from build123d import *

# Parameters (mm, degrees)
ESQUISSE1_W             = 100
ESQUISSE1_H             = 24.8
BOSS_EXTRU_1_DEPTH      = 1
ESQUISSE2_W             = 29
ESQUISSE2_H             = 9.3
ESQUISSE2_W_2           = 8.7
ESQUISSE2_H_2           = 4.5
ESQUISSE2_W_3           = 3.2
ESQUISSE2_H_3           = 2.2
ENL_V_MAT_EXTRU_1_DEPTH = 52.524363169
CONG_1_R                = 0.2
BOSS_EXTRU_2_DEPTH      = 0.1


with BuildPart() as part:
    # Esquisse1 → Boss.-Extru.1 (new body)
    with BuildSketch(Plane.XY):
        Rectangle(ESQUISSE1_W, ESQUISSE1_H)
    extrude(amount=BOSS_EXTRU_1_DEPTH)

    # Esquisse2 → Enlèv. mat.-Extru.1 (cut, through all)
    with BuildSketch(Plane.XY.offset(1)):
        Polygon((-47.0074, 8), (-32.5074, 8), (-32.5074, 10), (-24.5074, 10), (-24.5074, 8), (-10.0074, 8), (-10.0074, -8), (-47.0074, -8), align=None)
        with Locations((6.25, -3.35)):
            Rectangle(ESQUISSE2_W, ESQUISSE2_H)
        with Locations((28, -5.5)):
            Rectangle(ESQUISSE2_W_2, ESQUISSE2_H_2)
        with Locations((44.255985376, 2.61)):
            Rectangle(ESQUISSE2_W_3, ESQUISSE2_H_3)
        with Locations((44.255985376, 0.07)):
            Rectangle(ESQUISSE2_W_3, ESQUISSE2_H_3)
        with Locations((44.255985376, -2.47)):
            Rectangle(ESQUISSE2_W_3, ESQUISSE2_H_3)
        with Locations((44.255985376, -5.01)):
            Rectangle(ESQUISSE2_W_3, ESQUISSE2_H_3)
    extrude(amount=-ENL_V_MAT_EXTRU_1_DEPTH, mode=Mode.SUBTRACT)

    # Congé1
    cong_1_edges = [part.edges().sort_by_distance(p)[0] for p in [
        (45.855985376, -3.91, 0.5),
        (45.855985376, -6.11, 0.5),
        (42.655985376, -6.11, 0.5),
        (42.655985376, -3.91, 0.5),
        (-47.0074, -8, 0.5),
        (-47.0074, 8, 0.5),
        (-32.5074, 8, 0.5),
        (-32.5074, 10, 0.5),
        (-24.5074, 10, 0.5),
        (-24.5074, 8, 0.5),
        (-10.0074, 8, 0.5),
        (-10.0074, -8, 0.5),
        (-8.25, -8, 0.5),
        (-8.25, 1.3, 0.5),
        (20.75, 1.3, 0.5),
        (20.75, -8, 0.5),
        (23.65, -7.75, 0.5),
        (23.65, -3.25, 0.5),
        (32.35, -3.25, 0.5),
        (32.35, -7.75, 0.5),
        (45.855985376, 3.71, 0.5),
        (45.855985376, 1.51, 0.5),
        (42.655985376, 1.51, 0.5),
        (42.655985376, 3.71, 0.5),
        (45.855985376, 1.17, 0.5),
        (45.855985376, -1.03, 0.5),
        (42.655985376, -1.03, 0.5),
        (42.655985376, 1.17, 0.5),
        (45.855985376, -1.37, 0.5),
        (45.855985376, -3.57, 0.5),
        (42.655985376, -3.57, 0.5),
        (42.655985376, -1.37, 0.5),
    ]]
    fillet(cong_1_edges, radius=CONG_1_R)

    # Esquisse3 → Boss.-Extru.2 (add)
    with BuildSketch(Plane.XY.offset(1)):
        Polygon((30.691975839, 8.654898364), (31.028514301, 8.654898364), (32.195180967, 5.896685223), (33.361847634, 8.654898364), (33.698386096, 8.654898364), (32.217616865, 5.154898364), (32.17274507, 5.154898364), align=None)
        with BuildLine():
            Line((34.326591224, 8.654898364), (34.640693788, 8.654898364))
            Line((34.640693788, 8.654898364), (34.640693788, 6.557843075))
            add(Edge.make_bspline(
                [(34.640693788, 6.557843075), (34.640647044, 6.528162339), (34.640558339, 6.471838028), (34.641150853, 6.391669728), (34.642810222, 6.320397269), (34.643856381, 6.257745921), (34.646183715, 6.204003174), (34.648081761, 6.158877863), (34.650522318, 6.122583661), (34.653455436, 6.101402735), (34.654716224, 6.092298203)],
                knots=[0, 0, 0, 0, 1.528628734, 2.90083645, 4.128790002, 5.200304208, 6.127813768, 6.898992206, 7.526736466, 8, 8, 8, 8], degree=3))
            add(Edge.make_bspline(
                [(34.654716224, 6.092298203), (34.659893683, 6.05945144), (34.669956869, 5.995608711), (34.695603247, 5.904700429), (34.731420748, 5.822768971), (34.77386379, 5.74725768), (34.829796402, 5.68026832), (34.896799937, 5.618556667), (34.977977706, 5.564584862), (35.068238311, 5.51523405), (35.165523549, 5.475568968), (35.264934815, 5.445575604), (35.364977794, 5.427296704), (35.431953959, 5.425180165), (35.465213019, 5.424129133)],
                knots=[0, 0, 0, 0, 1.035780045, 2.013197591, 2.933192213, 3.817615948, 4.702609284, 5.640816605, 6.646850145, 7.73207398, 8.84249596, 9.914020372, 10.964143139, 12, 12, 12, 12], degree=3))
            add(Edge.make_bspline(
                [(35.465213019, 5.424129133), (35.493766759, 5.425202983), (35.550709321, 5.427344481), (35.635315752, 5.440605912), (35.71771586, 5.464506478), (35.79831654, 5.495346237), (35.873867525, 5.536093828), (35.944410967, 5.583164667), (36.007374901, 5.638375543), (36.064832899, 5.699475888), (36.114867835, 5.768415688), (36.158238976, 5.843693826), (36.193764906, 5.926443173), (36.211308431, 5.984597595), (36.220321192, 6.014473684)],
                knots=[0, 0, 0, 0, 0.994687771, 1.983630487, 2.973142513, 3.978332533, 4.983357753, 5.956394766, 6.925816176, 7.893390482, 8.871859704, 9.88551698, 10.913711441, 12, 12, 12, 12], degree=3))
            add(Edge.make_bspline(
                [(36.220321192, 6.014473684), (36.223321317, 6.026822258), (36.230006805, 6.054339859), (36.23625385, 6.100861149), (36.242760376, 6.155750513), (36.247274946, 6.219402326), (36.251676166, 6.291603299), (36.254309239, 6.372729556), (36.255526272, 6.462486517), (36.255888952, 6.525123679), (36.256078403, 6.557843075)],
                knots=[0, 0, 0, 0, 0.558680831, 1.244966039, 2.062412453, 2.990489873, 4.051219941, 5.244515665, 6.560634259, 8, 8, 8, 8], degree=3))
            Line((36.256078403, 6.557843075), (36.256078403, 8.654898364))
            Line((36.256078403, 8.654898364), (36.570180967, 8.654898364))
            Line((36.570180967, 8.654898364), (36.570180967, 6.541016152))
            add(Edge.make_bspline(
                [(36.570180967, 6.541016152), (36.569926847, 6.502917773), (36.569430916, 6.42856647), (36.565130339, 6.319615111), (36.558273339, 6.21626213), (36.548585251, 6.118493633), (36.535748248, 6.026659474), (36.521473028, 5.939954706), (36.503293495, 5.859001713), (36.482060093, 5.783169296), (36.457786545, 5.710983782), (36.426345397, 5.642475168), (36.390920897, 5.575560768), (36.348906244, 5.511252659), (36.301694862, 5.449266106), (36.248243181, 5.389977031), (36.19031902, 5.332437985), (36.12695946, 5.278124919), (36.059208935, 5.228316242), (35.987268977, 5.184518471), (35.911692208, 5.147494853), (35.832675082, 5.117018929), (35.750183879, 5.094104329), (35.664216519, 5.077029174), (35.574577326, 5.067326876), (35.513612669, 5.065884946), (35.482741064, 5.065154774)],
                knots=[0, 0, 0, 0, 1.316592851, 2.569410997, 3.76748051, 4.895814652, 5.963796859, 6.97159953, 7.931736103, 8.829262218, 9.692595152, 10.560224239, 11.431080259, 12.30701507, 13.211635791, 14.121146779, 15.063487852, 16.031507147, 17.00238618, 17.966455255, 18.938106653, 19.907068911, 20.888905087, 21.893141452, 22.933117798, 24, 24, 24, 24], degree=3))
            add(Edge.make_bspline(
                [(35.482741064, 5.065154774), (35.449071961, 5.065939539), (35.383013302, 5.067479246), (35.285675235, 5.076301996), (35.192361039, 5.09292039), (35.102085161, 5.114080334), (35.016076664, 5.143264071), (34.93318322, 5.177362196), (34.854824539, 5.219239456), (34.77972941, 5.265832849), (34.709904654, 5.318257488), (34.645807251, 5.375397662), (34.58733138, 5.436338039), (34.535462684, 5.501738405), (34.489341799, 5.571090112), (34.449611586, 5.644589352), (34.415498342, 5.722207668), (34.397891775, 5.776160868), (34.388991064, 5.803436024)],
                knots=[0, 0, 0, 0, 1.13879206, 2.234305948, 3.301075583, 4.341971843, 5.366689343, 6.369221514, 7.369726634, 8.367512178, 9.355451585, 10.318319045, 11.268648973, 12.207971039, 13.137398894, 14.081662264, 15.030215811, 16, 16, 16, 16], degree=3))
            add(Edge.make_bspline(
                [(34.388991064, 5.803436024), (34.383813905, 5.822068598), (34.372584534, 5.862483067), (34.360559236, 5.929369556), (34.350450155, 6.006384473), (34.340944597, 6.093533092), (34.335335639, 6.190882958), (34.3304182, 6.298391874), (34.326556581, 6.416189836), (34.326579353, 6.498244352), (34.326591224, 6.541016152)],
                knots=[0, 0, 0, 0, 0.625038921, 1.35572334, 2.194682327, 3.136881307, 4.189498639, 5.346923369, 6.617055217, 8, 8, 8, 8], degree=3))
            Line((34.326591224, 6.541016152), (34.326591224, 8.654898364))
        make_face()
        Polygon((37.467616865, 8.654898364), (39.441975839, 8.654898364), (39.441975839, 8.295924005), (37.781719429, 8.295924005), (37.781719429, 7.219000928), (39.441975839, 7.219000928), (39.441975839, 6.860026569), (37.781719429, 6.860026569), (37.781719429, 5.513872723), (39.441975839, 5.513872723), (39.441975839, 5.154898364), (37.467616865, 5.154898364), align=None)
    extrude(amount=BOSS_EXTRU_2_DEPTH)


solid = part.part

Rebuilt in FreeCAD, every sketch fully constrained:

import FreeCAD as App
import Part
import Sketcher

V = App.Vector
Q = App.Units.Quantity


def edges_at(feature, points):
    """Names of the edges that pass closest to the given points."""
    edges = feature.Shape.Edges
    near = lambda p: min(range(len(edges)), key=lambda i: edges[i].distToShape(Part.Vertex(*p))[0])
    return sorted({f"Edge{near(p) + 1}" for p in points})

doc = App.newDocument("Part")
body = doc.addObject("PartDesign::Body", "Body")

sketch1 = body.newObject("Sketcher::SketchObject", "Sketch")
sketch1.AttachmentSupport = (doc.getObject("XY_Plane"), [""])
sketch1.MapMode = "FlatFace"
sketch1.addGeometry([
    Part.LineSegment(V(-50, 12.4, 0), V(-50, -12.4, 0)),
    Part.LineSegment(V(-50, -12.4, 0), V(50, -12.4, 0)),
    Part.LineSegment(V(50, -12.4, 0), V(50, 12.4, 0)),
    Part.LineSegment(V(50, 12.4, 0), V(-50, 12.4, 0)),
], False)
sketch1.addConstraint([
    Sketcher.Constraint("Coincident", 0, 2, 1, 1),
    Sketcher.Constraint("Coincident", 1, 2, 2, 1),
    Sketcher.Constraint("Coincident", 2, 2, 3, 1),
    Sketcher.Constraint("Coincident", 3, 2, 0, 1),
    Sketcher.Constraint("Vertical", 0),
    Sketcher.Constraint("Horizontal", 1),
    Sketcher.Constraint("Vertical", 2),
    Sketcher.Constraint("Horizontal", 3),
    Sketcher.Constraint("Symmetric", 0, 2, 2, 2, -1, 1),
    Sketcher.Constraint("DistanceX", 1, 1, 1, 2, Q("100 mm")),
    Sketcher.Constraint("DistanceY", 0, 2, 0, 1, Q("24.8 mm")),
])
pad1 = body.newObject("PartDesign::Pad", "Pad")
pad1.Profile = sketch1
pad1.Length = 1

sketch2 = body.newObject("Sketcher::SketchObject", "Sketch001")
sketch2.AttachmentSupport = (doc.getObject("XY_Plane"), [""])
sketch2.MapMode = "FlatFace"
sketch2.AttachmentOffset = App.Placement(V(0, 0, 1), App.Rotation())
sketch2.addGeometry([
    Part.LineSegment(V(-32.5074, 8, 0), V(-47.0074, 8, 0)),
    Part.LineSegment(V(-47.0074, 8, 0), V(-47.0074, -8, 0)),
    Part.LineSegment(V(-47.0074, -8, 0), V(-10.0074, -8, 0)),
    Part.LineSegment(V(-10.0074, -8, 0), V(-10.0074, 8, 0)),
    Part.LineSegment(V(-10.0074, 8, 0), V(-24.5074, 8, 0)),
    Part.LineSegment(V(-24.5074, 8, 0), V(-24.5074, 10, 0)),
    Part.LineSegment(V(-24.5074, 10, 0), V(-32.5074, 10, 0)),
    Part.LineSegment(V(-32.5074, 10, 0), V(-32.5074, 8, 0)),
    Part.LineSegment(V(-8.25, 1.3, 0), V(-8.25, -8, 0)),
    Part.LineSegment(V(-8.25, -8, 0), V(20.75, -8, 0)),
    Part.LineSegment(V(20.75, -8, 0), V(20.75, 1.3, 0)),
    Part.LineSegment(V(20.75, 1.3, 0), V(-8.25, 1.3, 0)),
    Part.LineSegment(V(23.65, -3.25, 0), V(23.65, -7.75, 0)),
    Part.LineSegment(V(23.65, -7.75, 0), V(32.35, -7.75, 0)),
    Part.LineSegment(V(32.35, -7.75, 0), V(32.35, -3.25, 0)),
    Part.LineSegment(V(32.35, -3.25, 0), V(23.65, -3.25, 0)),
    Part.LineSegment(V(42.655985, 3.71, 0), V(42.655985, 1.51, 0)),
    Part.LineSegment(V(42.655985, 1.51, 0), V(45.855985, 1.51, 0)),
    Part.LineSegment(V(45.855985, 1.51, 0), V(45.855985, 3.71, 0)),
    Part.LineSegment(V(45.855985, 3.71, 0), V(42.655985, 3.71, 0)),
    Part.LineSegment(V(42.655985, 1.17, 0), V(42.655985, -1.03, 0)),
    Part.LineSegment(V(42.655985, -1.03, 0), V(45.855985, -1.03, 0)),
    Part.LineSegment(V(45.855985, -1.03, 0), V(45.855985, 1.17, 0)),
    Part.LineSegment(V(45.855985, 1.17, 0), V(42.655985, 1.17, 0)),
    Part.LineSegment(V(42.655985, -1.37, 0), V(42.655985, -3.57, 0)),
    Part.LineSegment(V(42.655985, -3.57, 0), V(45.855985, -3.57, 0)),
    Part.LineSegment(V(45.855985, -3.57, 0), V(45.855985, -1.37, 0)),
    Part.LineSegment(V(45.855985, -1.37, 0), V(42.655985, -1.37, 0)),
    Part.LineSegment(V(42.655985, -3.91, 0), V(42.655985, -6.11, 0)),
    Part.LineSegment(V(42.655985, -6.11, 0), V(45.855985, -6.11, 0)),
    Part.LineSegment(V(45.855985, -6.11, 0), V(45.855985, -3.91, 0)),
    Part.LineSegment(V(45.855985, -3.91, 0), V(42.655985, -3.91, 0)),
], False)
sketch2.addConstraint([
    Sketcher.Constraint("Coincident", 0, 2, 1, 1),
    Sketcher.Constraint("Coincident", 1, 2, 2, 1),
    Sketcher.Constraint("Coincident", 2, 2, 3, 1),
    Sketcher.Constraint("Coincident", 3, 2, 4, 1),
    Sketcher.Constraint("Coincident", 4, 2, 5, 1),
    Sketcher.Constraint("Coincident", 5, 2, 6, 1),
    Sketcher.Constraint("Coincident", 6, 2, 7, 1),
    Sketcher.Constraint("Coincident", 7, 2, 0, 1),
    Sketcher.Constraint("Coincident", 8, 2, 9, 1),
    Sketcher.Constraint("Coincident", 9, 2, 10, 1),
    Sketcher.Constraint("Coincident", 10, 2, 11, 1),
    Sketcher.Constraint("Coincident", 11, 2, 8, 1),
    Sketcher.Constraint("Coincident", 12, 2, 13, 1),
    Sketcher.Constraint("Coincident", 13, 2, 14, 1),
    Sketcher.Constraint("Coincident", 14, 2, 15, 1),
    Sketcher.Constraint("Coincident", 15, 2, 12, 1),
    Sketcher.Constraint("Coincident", 16, 2, 17, 1),
    Sketcher.Constraint("Coincident", 17, 2, 18, 1),
    Sketcher.Constraint("Coincident", 18, 2, 19, 1),
    Sketcher.Constraint("Coincident", 19, 2, 16, 1),
    Sketcher.Constraint("Coincident", 20, 2, 21, 1),
    Sketcher.Constraint("Coincident", 21, 2, 22, 1),
    Sketcher.Constraint("Coincident", 22, 2, 23, 1),
    Sketcher.Constraint("Coincident", 23, 2, 20, 1),
    Sketcher.Constraint("Coincident", 24, 2, 25, 1),
    Sketcher.Constraint("Coincident", 25, 2, 26, 1),
    Sketcher.Constraint("Coincident", 26, 2, 27, 1),
    Sketcher.Constraint("Coincident", 27, 2, 24, 1),
    Sketcher.Constraint("Coincident", 28, 2, 29, 1),
    Sketcher.Constraint("Coincident", 29, 2, 30, 1),
    Sketcher.Constraint("Coincident", 30, 2, 31, 1),
    Sketcher.Constraint("Coincident", 31, 2, 28, 1),
    Sketcher.Constraint("Horizontal", 0),
    Sketcher.Constraint("Vertical", 1),
    Sketcher.Constraint("Horizontal", 2),
    Sketcher.Constraint("Vertical", 3),
    Sketcher.Constraint("Horizontal", 4),
    Sketcher.Constraint("Vertical", 5),
    Sketcher.Constraint("Horizontal", 6),
    Sketcher.Constraint("Vertical", 7),
    Sketcher.Constraint("Vertical", 8),
    Sketcher.Constraint("Horizontal", 9),
    Sketcher.Constraint("Vertical", 10),
    Sketcher.Constraint("Horizontal", 11),
    Sketcher.Constraint("Vertical", 12),
    Sketcher.Constraint("Horizontal", 13),
    Sketcher.Constraint("Vertical", 14),
    Sketcher.Constraint("Horizontal", 15),
    Sketcher.Constraint("Vertical", 16),
    Sketcher.Constraint("Horizontal", 17),
    Sketcher.Constraint("Vertical", 18),
    Sketcher.Constraint("Horizontal", 19),
    Sketcher.Constraint("Vertical", 20),
    Sketcher.Constraint("Horizontal", 21),
    Sketcher.Constraint("Vertical", 22),
    Sketcher.Constraint("Horizontal", 23),
    Sketcher.Constraint("Vertical", 24),
    Sketcher.Constraint("Horizontal", 25),
    Sketcher.Constraint("Vertical", 26),
    Sketcher.Constraint("Horizontal", 27),
    Sketcher.Constraint("Vertical", 28),
    Sketcher.Constraint("Horizontal", 29),
    Sketcher.Constraint("Vertical", 30),
    Sketcher.Constraint("Horizontal", 31),
    Sketcher.Constraint("Horizontal", 0, 2, 3, 2),
    Sketcher.Constraint("Horizontal", 2, 2, 8, 2),
    Sketcher.Constraint("Vertical", 19, 2, 20, 2),
    Sketcher.Constraint("Vertical", 18, 2, 21, 2),
    Sketcher.Constraint("Vertical", 23, 2, 24, 2),
    Sketcher.Constraint("Vertical", 22, 2, 25, 2),
    Sketcher.Constraint("Vertical", 27, 2, 28, 2),
    Sketcher.Constraint("Vertical", 26, 2, 29, 2),
    Sketcher.Constraint("Equal", 0, 4),
    Sketcher.Constraint("Equal", 18, 20),
    Sketcher.Constraint("Equal", 22, 24),
    Sketcher.Constraint("Equal", 26, 28),
    Sketcher.Constraint("DistanceX", 2, 1, 2, 2, Q("37 mm")),
    Sketcher.Constraint("DistanceX", 6, 2, 6, 1, Q("8 mm")),
    Sketcher.Constraint("DistanceX", 9, 1, 9, 2, Q("29 mm")),
    Sketcher.Constraint("DistanceY", 1, 2, 1, 1, Q("16 mm")),
    Sketcher.Constraint("DistanceY", 5, 1, 5, 2, Q("2 mm")),
    Sketcher.Constraint("DistanceX", 13, 1, 13, 2, Q("8.7 mm")),
    Sketcher.Constraint("DistanceX", 17, 1, 17, 2, Q("3.2 mm")),
    Sketcher.Constraint("DistanceY", 8, 2, 8, 1, Q("9.3 mm")),
    Sketcher.Constraint("DistanceY", 12, 2, 12, 1, Q("4.5 mm")),
    Sketcher.Constraint("DistanceY", 16, 2, 16, 1, Q("2.2 mm")),
    Sketcher.Constraint("DistanceY", -1, 1, 0, 2, Q("8 mm")),
    Sketcher.Constraint("DistanceX", 9, 2, 12, 2, Q("2.9 mm")),
    Sketcher.Constraint("DistanceX", 8, 2, -1, 1, Q("8.25 mm")),
    Sketcher.Constraint("DistanceY", 12, 2, -1, 1, Q("7.75 mm")),
    Sketcher.Constraint("DistanceY", -1, 1, 16, 2, Q("1.51 mm")),
    Sketcher.Constraint("DistanceY", 20, 2, -1, 1, Q("1.03 mm")),
    Sketcher.Constraint("DistanceY", 24, 2, -1, 1, Q("3.57 mm")),
    Sketcher.Constraint("DistanceY", 28, 2, -1, 1, Q("6.11 mm")),
    Sketcher.Constraint("DistanceX", 0, 2, -1, 1, Q("47.0074 mm")),
    Sketcher.Constraint("DistanceX", -1, 1, 16, 2, Q("42.655985 mm")),
])
pocket1 = body.newObject("PartDesign::Pocket", "Pocket")
pocket1.Profile = sketch2
pocket1.Type = "ThroughAll"
doc.recompute()

fillet = body.newObject("PartDesign::Fillet", "Fillet")
fillet.Base = (pocket1, edges_at(pocket1, [
    (45.856, -3.91, 0.5),
    (45.856, -6.11, 0.5),
    (42.656, -6.11, 0.5),
    (42.656, -3.91, 0.5),
    (-47.007, -8, 0.5),
    (-47.007, 8, 0.5),
    (-32.507, 8, 0.5),
    (-32.507, 10, 0.5),
    (-24.507, 10, 0.5),
    (-24.507, 8, 0.5),
    (-10.007, 8, 0.5),
    (-10.007, -8, 0.5),
    (-8.25, -8, 0.5),
    (-8.25, 1.3, 0.5),
    (20.75, 1.3, 0.5),
    (20.75, -8, 0.5),
    (23.65, -7.75, 0.5),
    (23.65, -3.25, 0.5),
    (32.35, -3.25, 0.5),
    (32.35, -7.75, 0.5),
    (45.856, 3.71, 0.5),
    (45.856, 1.51, 0.5),
    (42.656, 1.51, 0.5),
    (42.656, 3.71, 0.5),
    (45.856, 1.17, 0.5),
    (45.856, -1.03, 0.5),
    (42.656, -1.03, 0.5),
    (42.656, 1.17, 0.5),
    (45.856, -1.37, 0.5),
    (45.856, -3.57, 0.5),
    (42.656, -3.57, 0.5),
    (42.656, -1.37, 0.5),
]))
fillet.Radius = 0.2

sketch3 = body.newObject("Sketcher::SketchObject", "Sketch002")
sketch3.AttachmentSupport = (doc.getObject("XY_Plane"), [""])
sketch3.MapMode = "FlatFace"
sketch3.AttachmentOffset = App.Placement(V(0, 0, 1), App.Rotation())
sketch3.addGeometry([
    Part.LineSegment(V(31.028514, 8.654898, 0), V(30.691976, 8.654898, 0)),
    Part.LineSegment(V(30.691976, 8.654898, 0), V(32.172745, 5.154898, 0)),
    Part.LineSegment(V(32.172745, 5.154898, 0), V(32.217617, 5.154898, 0)),
    Part.LineSegment(V(32.217617, 5.154898, 0), V(33.698386, 8.654898, 0)),
    Part.LineSegment(V(33.698386, 8.654898, 0), V(33.361848, 8.654898, 0)),
    Part.LineSegment(V(33.361848, 8.654898, 0), V(32.195181, 5.896685, 0)),
    Part.LineSegment(V(32.195181, 5.896685, 0), V(31.028514, 8.654898, 0)),
    Part.LineSegment(V(34.640694, 8.654898, 0), V(34.326591, 8.654898, 0)),
    Part.LineSegment(V(34.326591, 8.654898, 0), V(34.326591, 6.541016, 0)),
    Part.BSplineCurve([V(34.388991, 5.803436, 0), V(34.383814, 5.822069, 0), V(34.372585, 5.862483, 0), V(34.360559, 5.92937, 0), V(34.35045, 6.006384, 0), V(34.340945, 6.093533, 0), V(34.335336, 6.190883, 0), V(34.330418, 6.298392, 0), V(34.326557, 6.41619, 0), V(34.326579, 6.498244, 0), V(34.326591, 6.541016, 0)], [4, 1, 1, 1, 1, 1, 1, 1, 4], [0, 0.625038921, 1.35572334, 2.194682327, 3.136881307, 4.189498639, 5.346923369, 6.617055217, 8], False, 3, [1, 1, 1, 1, 1, 1, 1, 1, 1, 1, 1], False),
    Part.BSplineCurve([V(35.482741, 5.065155, 0), V(35.449072, 5.06594, 0), V(35.383013, 5.067479, 0), V(35.285675, 5.076302, 0), V(35.192361, 5.09292, 0), V(35.102085, 5.11408, 0), V(35.016077, 5.143264, 0), V(34.933183, 5.177362, 0), V(34.854825, 5.219239, 0), V(34.779729, 5.265833, 0), V(34.709905, 5.318257, 0), V(34.645807, 5.375398, 0), V(34.587331, 5.436338, 0), V(34.535463, 5.501738, 0), V(34.489342, 5.57109, 0), V(34.449612, 5.644589, 0), V(34.415498, 5.722208, 0), V(34.397892, 5.776161, 0), V(34.388991, 5.803436, 0)], [4, 1, 1, 1, 1, 1, 1, 1, 1, 1, 1, 1, 1, 1, 1, 1, 4], [0, 1.13879206, 2.234305948, 3.301075583, 4.341971843, 5.366689343, 6.369221514, 7.369726634, 8.367512178, 9.355451585, 10.318319045, 11.268648973, 12.207971039, 13.137398894, 14.081662264, 15.030215811, 16], False, 3, [1, 1, 1, 1, 1, 1, 1, 1, 1, 1, 1, 1, 1, 1, 1, 1, 1, 1, 1], False),
    Part.BSplineCurve([V(36.570181, 6.541016, 0), V(36.569927, 6.502918, 0), V(36.569431, 6.428566, 0), V(36.56513, 6.319615, 0), V(36.558273, 6.216262, 0), V(36.548585, 6.118494, 0), V(36.535748, 6.026659, 0), V(36.521473, 5.939955, 0), V(36.503293, 5.859002, 0), V(36.48206, 5.783169, 0), V(36.457787, 5.710984, 0), V(36.426345, 5.642475, 0), V(36.390921, 5.575561, 0), V(36.348906, 5.511253, 0), V(36.301695, 5.449266, 0), V(36.248243, 5.389977, 0), V(36.190319, 5.332438, 0), V(36.126959, 5.278125, 0), V(36.059209, 5.228316, 0), V(35.987269, 5.184518, 0), V(35.911692, 5.147495, 0), V(35.832675, 5.117019, 0), V(35.750184, 5.094104, 0), V(35.664217, 5.077029, 0), V(35.574577, 5.067327, 0), V(35.513613, 5.065885, 0), V(35.482741, 5.065155, 0)], [4, 1, 1, 1, 1, 1, 1, 1, 1, 1, 1, 1, 1, 1, 1, 1, 1, 1, 1, 1, 1, 1, 1, 1, 4], [0, 1.316592851, 2.569410997, 3.76748051, 4.895814652, 5.963796859, 6.97159953, 7.931736103, 8.829262218, 9.692595152, 10.560224239, 11.431080259, 12.30701507, 13.211635791, 14.121146779, 15.063487852, 16.031507147, 17.00238618, 17.966455255, 18.938106653, 19.907068911, 20.888905087, 21.893141452, 22.933117798, 24], False, 3, [1, 1, 1, 1, 1, 1, 1, 1, 1, 1, 1, 1, 1, 1, 1, 1, 1, 1, 1, 1, 1, 1, 1, 1, 1, 1, 1], False),
    Part.LineSegment(V(36.570181, 6.541016, 0), V(36.570181, 8.654898, 0)),
    Part.LineSegment(V(36.570181, 8.654898, 0), V(36.256078, 8.654898, 0)),
    Part.LineSegment(V(36.256078, 8.654898, 0), V(36.256078, 6.557843, 0)),
    Part.BSplineCurve([V(36.220321, 6.014474, 0), V(36.223321, 6.026822, 0), V(36.230007, 6.05434, 0), V(36.236254, 6.100861, 0), V(36.24276, 6.155751, 0), V(36.247275, 6.219402, 0), V(36.251676, 6.291603, 0), V(36.254309, 6.37273, 0), V(36.255526, 6.462487, 0), V(36.255889, 6.525124, 0), V(36.256078, 6.557843, 0)], [4, 1, 1, 1, 1, 1, 1, 1, 4], [0, 0.558680831, 1.244966039, 2.062412453, 2.990489873, 4.051219941, 5.244515665, 6.560634259, 8], False, 3, [1, 1, 1, 1, 1, 1, 1, 1, 1, 1, 1], False),
    Part.BSplineCurve([V(35.465213, 5.424129, 0), V(35.493767, 5.425203, 0), V(35.550709, 5.427344, 0), V(35.635316, 5.440606, 0), V(35.717716, 5.464506, 0), V(35.798317, 5.495346, 0), V(35.873868, 5.536094, 0), V(35.944411, 5.583165, 0), V(36.007375, 5.638376, 0), V(36.064833, 5.699476, 0), V(36.114868, 5.768416, 0), V(36.158239, 5.843694, 0), V(36.193765, 5.926443, 0), V(36.211308, 5.984598, 0), V(36.220321, 6.014474, 0)], [4, 1, 1, 1, 1, 1, 1, 1, 1, 1, 1, 1, 4], [0, 0.994687771, 1.983630487, 2.973142513, 3.978332533, 4.983357753, 5.956394766, 6.925816176, 7.893390482, 8.871859704, 9.88551698, 10.913711441, 12], False, 3, [1, 1, 1, 1, 1, 1, 1, 1, 1, 1, 1, 1, 1, 1, 1], False),
    Part.BSplineCurve([V(34.654716, 6.092298, 0), V(34.659894, 6.059451, 0), V(34.669957, 5.995609, 0), V(34.695603, 5.9047, 0), V(34.731421, 5.822769, 0), V(34.773864, 5.747258, 0), V(34.829796, 5.680268, 0), V(34.8968, 5.618557, 0), V(34.977978, 5.564585, 0), V(35.068238, 5.515234, 0), V(35.165524, 5.475569, 0), V(35.264935, 5.445576, 0), V(35.364978, 5.427297, 0), V(35.431954, 5.42518, 0), V(35.465213, 5.424129, 0)], [4, 1, 1, 1, 1, 1, 1, 1, 1, 1, 1, 1, 4], [0, 1.035780045, 2.013197591, 2.933192213, 3.817615948, 4.702609284, 5.640816605, 6.646850145, 7.73207398, 8.84249596, 9.914020372, 10.964143139, 12], False, 3, [1, 1, 1, 1, 1, 1, 1, 1, 1, 1, 1, 1, 1, 1, 1], False),
    Part.BSplineCurve([V(34.640694, 6.557843, 0), V(34.640647, 6.528162, 0), V(34.640558, 6.471838, 0), V(34.641151, 6.39167, 0), V(34.64281, 6.320397, 0), V(34.643856, 6.257746, 0), V(34.646184, 6.204003, 0), V(34.648082, 6.158878, 0), V(34.650522, 6.122584, 0), V(34.653455, 6.101403, 0), V(34.654716, 6.092298, 0)], [4, 1, 1, 1, 1, 1, 1, 1, 4], [0, 1.528628734, 2.90083645, 4.128790002, 5.200304208, 6.127813768, 6.898992206, 7.526736466, 8], False, 3, [1, 1, 1, 1, 1, 1, 1, 1, 1, 1, 1], False),
    Part.LineSegment(V(34.640694, 6.557843, 0), V(34.640694, 8.654898, 0)),
    Part.LineSegment(V(39.441976, 8.654898, 0), V(37.467617, 8.654898, 0)),
    Part.LineSegment(V(37.467617, 8.654898, 0), V(37.467617, 5.154898, 0)),
    Part.LineSegment(V(37.467617, 5.154898, 0), V(39.441976, 5.154898, 0)),
    Part.LineSegment(V(39.441976, 5.154898, 0), V(39.441976, 5.513873, 0)),
    Part.LineSegment(V(39.441976, 5.513873, 0), V(37.781719, 5.513873, 0)),
    Part.LineSegment(V(37.781719, 5.513873, 0), V(37.781719, 6.860027, 0)),
    Part.LineSegment(V(37.781719, 6.860027, 0), V(39.441976, 6.860027, 0)),
    Part.LineSegment(V(39.441976, 6.860027, 0), V(39.441976, 7.219001, 0)),
    Part.LineSegment(V(39.441976, 7.219001, 0), V(37.781719, 7.219001, 0)),
    Part.LineSegment(V(37.781719, 7.219001, 0), V(37.781719, 8.295924, 0)),
    Part.LineSegment(V(37.781719, 8.295924, 0), V(39.441976, 8.295924, 0)),
    Part.LineSegment(V(39.441976, 8.295924, 0), V(39.441976, 8.654898, 0)),
], False)
sketch3.addConstraint([
    Sketcher.Constraint("Block", 9),
    Sketcher.Constraint("Block", 10),
    Sketcher.Constraint("Block", 11),
    Sketcher.Constraint("Block", 15),
    Sketcher.Constraint("Block", 16),
    Sketcher.Constraint("Block", 17),
    Sketcher.Constraint("Block", 18),
    Sketcher.Constraint("Coincident", 0, 2, 1, 1),
    Sketcher.Constraint("Coincident", 1, 2, 2, 1),
    Sketcher.Constraint("Coincident", 2, 2, 3, 1),
    Sketcher.Constraint("Coincident", 3, 2, 4, 1),
    Sketcher.Constraint("Coincident", 4, 2, 5, 1),
    Sketcher.Constraint("Coincident", 5, 2, 6, 1),
    Sketcher.Constraint("Coincident", 6, 2, 0, 1),
    Sketcher.Constraint("Coincident", 7, 2, 8, 1),
    Sketcher.Constraint("Coincident", 8, 2, 9, 2),
    Sketcher.Constraint("Coincident", 11, 1, 12, 1),
    Sketcher.Constraint("Coincident", 12, 2, 13, 1),
    Sketcher.Constraint("Coincident", 13, 2, 14, 1),
    Sketcher.Constraint("Coincident", 14, 2, 15, 2),
    Sketcher.Constraint("Coincident", 18, 1, 19, 1),
    Sketcher.Constraint("Coincident", 19, 2, 7, 1),
    Sketcher.Constraint("Coincident", 20, 2, 21, 1),
    Sketcher.Constraint("Coincident", 21, 2, 22, 1),
    Sketcher.Constraint("Coincident", 22, 2, 23, 1),
    Sketcher.Constraint("Coincident", 23, 2, 24, 1),
    Sketcher.Constraint("Coincident", 24, 2, 25, 1),
    Sketcher.Constraint("Coincident", 25, 2, 26, 1),
    Sketcher.Constraint("Coincident", 26, 2, 27, 1),
    Sketcher.Constraint("Coincident", 27, 2, 28, 1),
    Sketcher.Constraint("Coincident", 28, 2, 29, 1),
    Sketcher.Constraint("Coincident", 29, 2, 30, 1),
    Sketcher.Constraint("Coincident", 30, 2, 31, 1),
    Sketcher.Constraint("Coincident", 31, 2, 20, 1),
    Sketcher.Constraint("Horizontal", 0),
    Sketcher.Constraint("Horizontal", 2),
    Sketcher.Constraint("Horizontal", 4),
    Sketcher.Constraint("Horizontal", 7),
    Sketcher.Constraint("Vertical", 8),
    Sketcher.Constraint("Vertical", 12),
    Sketcher.Constraint("Horizontal", 13),
    Sketcher.Constraint("Vertical", 14),
    Sketcher.Constraint("Vertical", 19),
    Sketcher.Constraint("Horizontal", 20),
    Sketcher.Constraint("Vertical", 21),
    Sketcher.Constraint("Horizontal", 22),
    Sketcher.Constraint("Vertical", 23),
    Sketcher.Constraint("Horizontal", 24),
    Sketcher.Constraint("Vertical", 25),
    Sketcher.Constraint("Horizontal", 26),
    Sketcher.Constraint("Vertical", 27),
    Sketcher.Constraint("Horizontal", 28),
    Sketcher.Constraint("Vertical", 29),
    Sketcher.Constraint("Horizontal", 30),
    Sketcher.Constraint("Vertical", 31),
    Sketcher.Constraint("Horizontal", 0, 2, 3, 2),
    Sketcher.Constraint("Horizontal", 6, 2, 7, 2),
    Sketcher.Constraint("Horizontal", 7, 2, 12, 2),
    Sketcher.Constraint("Horizontal", 19, 2, 20, 2),
    Sketcher.Constraint("Horizontal", 2, 2, 21, 2),
    Sketcher.Constraint("Vertical", 23, 2, 26, 2),
    Sketcher.Constraint("Vertical", 25, 2, 28, 2),
    Sketcher.Constraint("Vertical", 27, 2, 30, 2),
    Sketcher.Constraint("Equal", 0, 4),
    Sketcher.Constraint("Equal", 23, 27),
    Sketcher.Constraint("Equal", 27, 31),
    Sketcher.Constraint("Equal", 1, 3),
    Sketcher.Constraint("Equal", 5, 6),
    Sketcher.Constraint("DistanceY", 21, 2, 21, 1, Q("3.5 mm")),
    Sketcher.Constraint("DistanceY", -1, 1, 27, 2, Q("7.219001 mm")),
    Sketcher.Constraint("DistanceX", 5, 2, 12, 2, Q("4.375 mm")),
    Sketcher.Constraint("DistanceX", 0, 2, 0, 1, Q("0.336538 mm")),
    Sketcher.Constraint("DistanceX", 2, 1, 2, 2, Q("0.044872 mm")),
    Sketcher.Constraint("DistanceX", 20, 2, 20, 1, Q("1.974359 mm")),
    Sketcher.Constraint("DistanceY", -1, 1, 0, 2, Q("8.654898 mm")),
    Sketcher.Constraint("DistanceX", 24, 2, 24, 1, Q("1.660256 mm")),
    Sketcher.Constraint("DistanceY", 23, 1, 23, 2, Q("0.358974 mm")),
    Sketcher.Constraint("DistanceX", -1, 1, 24, 2, Q("37.781719 mm")),
    Sketcher.Constraint("DistanceX", 0, 2, 1, 2, Q("1.480769 mm")),
    Sketcher.Constraint("DistanceY", 5, 2, 8, 2, Q("0.644331 mm")),
])
pad2 = body.newObject("PartDesign::Pad", "Pad001")
pad2.Profile = sketch3
pad2.Length = 0.1

doc.recompute()
